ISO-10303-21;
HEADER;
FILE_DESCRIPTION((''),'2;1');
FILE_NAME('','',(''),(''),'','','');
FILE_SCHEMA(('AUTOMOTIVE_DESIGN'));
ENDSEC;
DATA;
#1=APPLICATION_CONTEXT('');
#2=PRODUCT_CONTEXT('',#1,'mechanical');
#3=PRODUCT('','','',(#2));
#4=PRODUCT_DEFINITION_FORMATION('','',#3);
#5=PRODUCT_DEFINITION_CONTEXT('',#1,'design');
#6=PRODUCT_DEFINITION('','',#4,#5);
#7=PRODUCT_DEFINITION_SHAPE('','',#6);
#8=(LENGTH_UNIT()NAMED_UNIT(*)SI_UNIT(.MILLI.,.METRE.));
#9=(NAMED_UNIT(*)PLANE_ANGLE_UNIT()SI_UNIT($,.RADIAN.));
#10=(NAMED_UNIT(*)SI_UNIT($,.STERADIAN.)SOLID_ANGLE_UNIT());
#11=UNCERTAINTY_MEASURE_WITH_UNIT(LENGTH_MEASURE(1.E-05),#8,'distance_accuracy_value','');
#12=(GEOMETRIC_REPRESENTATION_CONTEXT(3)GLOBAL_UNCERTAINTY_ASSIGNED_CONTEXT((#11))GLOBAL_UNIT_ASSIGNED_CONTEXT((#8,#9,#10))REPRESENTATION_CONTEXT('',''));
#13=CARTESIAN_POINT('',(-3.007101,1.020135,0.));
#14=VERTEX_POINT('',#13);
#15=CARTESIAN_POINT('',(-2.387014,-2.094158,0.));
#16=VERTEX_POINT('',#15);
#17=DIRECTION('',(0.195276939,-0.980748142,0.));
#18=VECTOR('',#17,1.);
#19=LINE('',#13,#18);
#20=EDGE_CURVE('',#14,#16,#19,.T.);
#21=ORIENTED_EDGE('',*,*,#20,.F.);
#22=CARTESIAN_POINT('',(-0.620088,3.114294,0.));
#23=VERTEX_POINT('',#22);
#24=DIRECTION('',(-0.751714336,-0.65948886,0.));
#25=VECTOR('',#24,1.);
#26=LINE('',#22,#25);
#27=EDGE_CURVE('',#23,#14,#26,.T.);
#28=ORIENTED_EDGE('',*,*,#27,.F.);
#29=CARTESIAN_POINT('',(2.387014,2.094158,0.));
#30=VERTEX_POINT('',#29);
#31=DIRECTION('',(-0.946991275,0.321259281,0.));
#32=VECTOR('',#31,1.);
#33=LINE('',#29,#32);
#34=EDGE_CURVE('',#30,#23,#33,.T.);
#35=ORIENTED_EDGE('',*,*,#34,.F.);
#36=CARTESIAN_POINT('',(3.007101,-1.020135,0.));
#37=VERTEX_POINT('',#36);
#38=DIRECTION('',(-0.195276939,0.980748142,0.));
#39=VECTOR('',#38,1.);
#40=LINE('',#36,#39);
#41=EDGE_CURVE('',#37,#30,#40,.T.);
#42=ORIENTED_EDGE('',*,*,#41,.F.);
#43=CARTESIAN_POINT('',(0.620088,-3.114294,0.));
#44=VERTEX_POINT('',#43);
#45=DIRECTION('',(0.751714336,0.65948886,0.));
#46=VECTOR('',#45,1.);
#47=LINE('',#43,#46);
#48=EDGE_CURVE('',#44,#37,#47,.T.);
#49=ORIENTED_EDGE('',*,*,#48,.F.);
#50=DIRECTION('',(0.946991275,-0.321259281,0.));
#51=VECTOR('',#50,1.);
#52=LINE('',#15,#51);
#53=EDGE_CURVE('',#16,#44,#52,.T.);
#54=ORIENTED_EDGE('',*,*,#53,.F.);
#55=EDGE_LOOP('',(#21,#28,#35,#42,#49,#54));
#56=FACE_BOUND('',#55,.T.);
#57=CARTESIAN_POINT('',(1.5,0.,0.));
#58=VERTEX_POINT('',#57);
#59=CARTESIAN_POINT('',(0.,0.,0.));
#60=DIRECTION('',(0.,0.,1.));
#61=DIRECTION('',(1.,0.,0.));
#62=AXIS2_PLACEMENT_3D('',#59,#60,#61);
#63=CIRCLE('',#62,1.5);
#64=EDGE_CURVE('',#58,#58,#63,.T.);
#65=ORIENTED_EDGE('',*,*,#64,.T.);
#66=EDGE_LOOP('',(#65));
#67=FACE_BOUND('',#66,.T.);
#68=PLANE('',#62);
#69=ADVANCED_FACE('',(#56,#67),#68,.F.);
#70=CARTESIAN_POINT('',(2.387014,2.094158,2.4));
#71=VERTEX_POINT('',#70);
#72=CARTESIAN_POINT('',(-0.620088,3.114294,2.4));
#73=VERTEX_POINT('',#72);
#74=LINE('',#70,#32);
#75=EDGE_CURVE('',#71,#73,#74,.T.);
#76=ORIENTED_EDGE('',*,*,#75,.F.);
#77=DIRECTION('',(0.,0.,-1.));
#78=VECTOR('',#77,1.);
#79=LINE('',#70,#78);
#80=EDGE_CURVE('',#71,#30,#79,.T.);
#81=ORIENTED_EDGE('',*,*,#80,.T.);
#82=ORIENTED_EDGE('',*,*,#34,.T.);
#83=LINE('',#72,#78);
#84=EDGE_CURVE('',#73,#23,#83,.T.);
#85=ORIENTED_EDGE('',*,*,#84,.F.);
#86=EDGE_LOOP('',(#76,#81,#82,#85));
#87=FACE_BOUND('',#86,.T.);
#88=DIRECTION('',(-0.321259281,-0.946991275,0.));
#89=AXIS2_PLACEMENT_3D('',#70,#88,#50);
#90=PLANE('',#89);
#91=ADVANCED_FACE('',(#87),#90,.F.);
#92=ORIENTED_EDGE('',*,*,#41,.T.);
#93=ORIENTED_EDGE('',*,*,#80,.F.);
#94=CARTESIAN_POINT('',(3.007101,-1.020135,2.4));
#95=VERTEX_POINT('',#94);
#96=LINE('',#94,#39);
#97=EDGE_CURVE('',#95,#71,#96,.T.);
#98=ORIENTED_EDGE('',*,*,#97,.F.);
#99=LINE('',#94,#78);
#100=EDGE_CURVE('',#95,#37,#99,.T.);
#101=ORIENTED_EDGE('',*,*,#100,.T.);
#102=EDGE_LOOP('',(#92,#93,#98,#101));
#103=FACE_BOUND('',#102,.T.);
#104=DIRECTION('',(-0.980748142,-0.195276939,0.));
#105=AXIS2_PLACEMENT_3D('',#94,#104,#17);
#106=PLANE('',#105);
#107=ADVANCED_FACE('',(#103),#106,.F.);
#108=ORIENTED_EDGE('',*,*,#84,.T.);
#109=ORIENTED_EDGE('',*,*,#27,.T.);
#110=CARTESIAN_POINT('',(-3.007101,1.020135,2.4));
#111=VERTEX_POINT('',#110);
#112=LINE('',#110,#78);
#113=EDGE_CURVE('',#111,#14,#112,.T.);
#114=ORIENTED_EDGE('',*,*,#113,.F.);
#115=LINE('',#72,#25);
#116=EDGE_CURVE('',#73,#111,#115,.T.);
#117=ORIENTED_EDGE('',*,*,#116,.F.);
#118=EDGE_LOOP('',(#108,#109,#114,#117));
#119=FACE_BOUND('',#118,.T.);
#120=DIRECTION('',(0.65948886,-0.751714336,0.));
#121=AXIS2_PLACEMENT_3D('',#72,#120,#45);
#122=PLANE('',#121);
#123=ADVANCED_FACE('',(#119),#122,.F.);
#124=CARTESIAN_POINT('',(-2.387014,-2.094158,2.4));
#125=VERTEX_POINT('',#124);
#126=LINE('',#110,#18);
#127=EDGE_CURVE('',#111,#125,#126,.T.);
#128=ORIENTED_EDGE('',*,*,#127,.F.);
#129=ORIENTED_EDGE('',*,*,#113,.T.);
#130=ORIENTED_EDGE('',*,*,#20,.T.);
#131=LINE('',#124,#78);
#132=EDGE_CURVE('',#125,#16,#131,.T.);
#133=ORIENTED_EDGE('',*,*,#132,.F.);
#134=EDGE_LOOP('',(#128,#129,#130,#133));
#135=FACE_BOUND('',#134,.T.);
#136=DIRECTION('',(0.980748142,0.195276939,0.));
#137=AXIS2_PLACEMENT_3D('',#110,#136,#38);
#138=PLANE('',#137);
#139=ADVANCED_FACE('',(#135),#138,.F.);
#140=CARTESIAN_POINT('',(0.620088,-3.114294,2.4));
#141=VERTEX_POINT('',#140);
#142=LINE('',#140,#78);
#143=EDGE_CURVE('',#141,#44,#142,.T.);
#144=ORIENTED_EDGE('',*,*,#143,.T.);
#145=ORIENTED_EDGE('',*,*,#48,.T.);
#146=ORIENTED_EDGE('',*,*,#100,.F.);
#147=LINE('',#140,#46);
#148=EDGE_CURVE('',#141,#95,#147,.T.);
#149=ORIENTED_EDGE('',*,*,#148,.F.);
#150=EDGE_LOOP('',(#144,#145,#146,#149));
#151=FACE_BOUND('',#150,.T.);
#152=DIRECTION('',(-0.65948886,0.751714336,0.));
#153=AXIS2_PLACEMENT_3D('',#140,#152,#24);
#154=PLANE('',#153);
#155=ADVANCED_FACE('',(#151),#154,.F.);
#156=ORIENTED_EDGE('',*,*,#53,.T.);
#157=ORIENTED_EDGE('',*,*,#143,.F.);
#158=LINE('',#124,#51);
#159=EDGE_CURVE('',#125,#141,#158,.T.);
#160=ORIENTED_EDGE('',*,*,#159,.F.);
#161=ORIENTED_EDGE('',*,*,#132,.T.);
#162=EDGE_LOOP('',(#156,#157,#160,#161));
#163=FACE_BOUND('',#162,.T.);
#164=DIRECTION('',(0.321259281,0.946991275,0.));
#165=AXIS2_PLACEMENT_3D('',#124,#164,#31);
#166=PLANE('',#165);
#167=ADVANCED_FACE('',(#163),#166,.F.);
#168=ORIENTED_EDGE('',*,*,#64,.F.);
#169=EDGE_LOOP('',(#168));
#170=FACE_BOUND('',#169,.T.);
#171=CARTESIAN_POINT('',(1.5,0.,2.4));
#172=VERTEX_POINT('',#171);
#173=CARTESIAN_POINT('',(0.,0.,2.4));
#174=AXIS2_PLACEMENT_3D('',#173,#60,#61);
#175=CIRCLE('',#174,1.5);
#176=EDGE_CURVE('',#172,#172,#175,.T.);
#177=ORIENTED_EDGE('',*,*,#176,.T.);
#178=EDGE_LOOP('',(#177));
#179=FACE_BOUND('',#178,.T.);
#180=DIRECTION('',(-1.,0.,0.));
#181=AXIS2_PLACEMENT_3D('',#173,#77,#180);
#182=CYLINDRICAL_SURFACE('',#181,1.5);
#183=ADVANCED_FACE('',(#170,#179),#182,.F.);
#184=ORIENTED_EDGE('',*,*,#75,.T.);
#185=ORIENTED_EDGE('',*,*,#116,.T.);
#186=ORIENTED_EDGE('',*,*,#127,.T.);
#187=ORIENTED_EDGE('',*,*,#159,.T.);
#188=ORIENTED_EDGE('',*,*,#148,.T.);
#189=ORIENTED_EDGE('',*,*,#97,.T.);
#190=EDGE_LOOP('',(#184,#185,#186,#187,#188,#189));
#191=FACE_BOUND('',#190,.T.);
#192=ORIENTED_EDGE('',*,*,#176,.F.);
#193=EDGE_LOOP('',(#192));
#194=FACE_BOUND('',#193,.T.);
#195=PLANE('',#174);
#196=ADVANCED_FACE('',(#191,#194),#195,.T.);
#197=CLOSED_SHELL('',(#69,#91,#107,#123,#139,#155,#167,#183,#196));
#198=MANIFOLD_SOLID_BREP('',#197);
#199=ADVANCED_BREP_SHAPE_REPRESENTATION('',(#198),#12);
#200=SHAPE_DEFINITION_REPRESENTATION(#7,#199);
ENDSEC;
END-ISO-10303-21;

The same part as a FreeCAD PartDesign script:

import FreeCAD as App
import Part
import Sketcher

doc = App.newDocument("Part")
body = doc.addObject("PartDesign::Body", "Body")

sketch1 = doc.addObject("Sketcher::SketchObject", "Sketch")
body.addObject(sketch1)
sketch1.AttachmentSupport = (doc.XY_Plane, [""])
sketch1.MapMode = "FlatFace"
sketch1.addGeometry([
    Part.LineSegment(App.Vector(3, -1, 0), App.Vector(2.4, 2.1, 0)),
    Part.LineSegment(App.Vector(2.4, 2.1, 0), App.Vector(-0.6, 3.1, 0)),
    Part.LineSegment(App.Vector(-0.6, 3.1, 0), App.Vector(-3, 1, 0)),
    Part.LineSegment(App.Vector(-3, 1, 0), App.Vector(-2.4, -2.1, 0)),
    Part.LineSegment(App.Vector(-2.4, -2.1, 0), App.Vector(0.6, -3.1, 0)),
    Part.LineSegment(App.Vector(0.6, -3.1, 0), App.Vector(3, -1, 0)),
    Part.Circle(App.Vector(0, 0, 0), App.Vector(0, 0, 1), 1.5),
], False)
sketch1.addConstraint([
    Sketcher.Constraint("Coincident", 0, 2, 1, 1),
    Sketcher.Constraint("Coincident", 1, 2, 2, 1),
    Sketcher.Constraint("Coincident", 2, 2, 3, 1),
    Sketcher.Constraint("Coincident", 3, 2, 4, 1),
    Sketcher.Constraint("Coincident", 4, 2, 5, 1),
    Sketcher.Constraint("Coincident", 5, 2, 0, 1),
    Sketcher.Constraint("Coincident", 6, 3, -1, 1),
    Sketcher.Constraint("Symmetric", 0, 2, 3, 2, -1, 1),
    Sketcher.Constraint("Symmetric", 1, 2, 4, 2, -1, 1),
    Sketcher.Constraint("Symmetric", 2, 2, 5, 2, -1, 1),
    Sketcher.Constraint("Equal", 0, 1),
    Sketcher.Constraint("Equal", 1, 2),
    Sketcher.Constraint("Diameter", 6, 3.0),
    Sketcher.Constraint("DistanceX", 2, 2, -1, 1, 3.007101),
    Sketcher.Constraint("DistanceX", 1, 2, 0, 2, 3.007101),
    Sketcher.Constraint("DistanceY", -1, 1, 0, 2, 2.094158),
    Sketcher.Constraint("DistanceY", 2, 2, 1, 2, 2.094158),
])
pad1 = doc.addObject("PartDesign::Pad", "Pad")
body.addObject(pad1)
pad1.Profile = sketch1
pad1.Length = 2.4

doc.recompute()
